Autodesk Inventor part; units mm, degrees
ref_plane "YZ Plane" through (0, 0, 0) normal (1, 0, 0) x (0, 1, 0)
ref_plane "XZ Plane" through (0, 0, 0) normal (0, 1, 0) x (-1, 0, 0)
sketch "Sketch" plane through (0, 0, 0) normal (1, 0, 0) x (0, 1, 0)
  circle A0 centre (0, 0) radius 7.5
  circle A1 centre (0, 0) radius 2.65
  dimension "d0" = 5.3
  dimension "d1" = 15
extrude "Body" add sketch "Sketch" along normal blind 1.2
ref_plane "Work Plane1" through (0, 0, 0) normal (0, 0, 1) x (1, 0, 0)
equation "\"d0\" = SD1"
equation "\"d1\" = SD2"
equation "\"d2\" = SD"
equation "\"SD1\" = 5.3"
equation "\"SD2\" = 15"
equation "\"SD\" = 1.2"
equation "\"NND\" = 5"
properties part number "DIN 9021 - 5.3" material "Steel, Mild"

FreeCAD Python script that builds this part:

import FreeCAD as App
import Part
import Sketcher
Q = App.Units.Quantity

doc = App.newDocument("Part")
body = doc.addObject("PartDesign::Body", "Body")

# Sketch on YZ plane
sketch1 = body.newObject("Sketcher::SketchObject", "Sketch")
sketch1.AttachmentSupport = (doc.getObject("YZ_Plane"), [""])
sketch1.MapMode = "FlatFace"
sketch1.addGeometry([
    Part.Circle(App.Vector(0, 0, 0), App.Vector(0, 0, 1), 7.5),
    Part.Circle(App.Vector(0, 0, 0), App.Vector(0, 0, 1), 2.65),
], False)
sketch1.addConstraint([
    Sketcher.Constraint("Coincident", 0, 3, -1, 1),
    Sketcher.Constraint("Coincident", 1, 3, -1, 1),
    Sketcher.Constraint("Diameter", 0, Q("15 mm")),
    Sketcher.Constraint("Diameter", 1, Q("5.3 mm")),
])
pad1 = body.newObject("PartDesign::Pad", "Pad")
pad1.Profile = sketch1
pad1.Length = 1.2

doc.recompute()
